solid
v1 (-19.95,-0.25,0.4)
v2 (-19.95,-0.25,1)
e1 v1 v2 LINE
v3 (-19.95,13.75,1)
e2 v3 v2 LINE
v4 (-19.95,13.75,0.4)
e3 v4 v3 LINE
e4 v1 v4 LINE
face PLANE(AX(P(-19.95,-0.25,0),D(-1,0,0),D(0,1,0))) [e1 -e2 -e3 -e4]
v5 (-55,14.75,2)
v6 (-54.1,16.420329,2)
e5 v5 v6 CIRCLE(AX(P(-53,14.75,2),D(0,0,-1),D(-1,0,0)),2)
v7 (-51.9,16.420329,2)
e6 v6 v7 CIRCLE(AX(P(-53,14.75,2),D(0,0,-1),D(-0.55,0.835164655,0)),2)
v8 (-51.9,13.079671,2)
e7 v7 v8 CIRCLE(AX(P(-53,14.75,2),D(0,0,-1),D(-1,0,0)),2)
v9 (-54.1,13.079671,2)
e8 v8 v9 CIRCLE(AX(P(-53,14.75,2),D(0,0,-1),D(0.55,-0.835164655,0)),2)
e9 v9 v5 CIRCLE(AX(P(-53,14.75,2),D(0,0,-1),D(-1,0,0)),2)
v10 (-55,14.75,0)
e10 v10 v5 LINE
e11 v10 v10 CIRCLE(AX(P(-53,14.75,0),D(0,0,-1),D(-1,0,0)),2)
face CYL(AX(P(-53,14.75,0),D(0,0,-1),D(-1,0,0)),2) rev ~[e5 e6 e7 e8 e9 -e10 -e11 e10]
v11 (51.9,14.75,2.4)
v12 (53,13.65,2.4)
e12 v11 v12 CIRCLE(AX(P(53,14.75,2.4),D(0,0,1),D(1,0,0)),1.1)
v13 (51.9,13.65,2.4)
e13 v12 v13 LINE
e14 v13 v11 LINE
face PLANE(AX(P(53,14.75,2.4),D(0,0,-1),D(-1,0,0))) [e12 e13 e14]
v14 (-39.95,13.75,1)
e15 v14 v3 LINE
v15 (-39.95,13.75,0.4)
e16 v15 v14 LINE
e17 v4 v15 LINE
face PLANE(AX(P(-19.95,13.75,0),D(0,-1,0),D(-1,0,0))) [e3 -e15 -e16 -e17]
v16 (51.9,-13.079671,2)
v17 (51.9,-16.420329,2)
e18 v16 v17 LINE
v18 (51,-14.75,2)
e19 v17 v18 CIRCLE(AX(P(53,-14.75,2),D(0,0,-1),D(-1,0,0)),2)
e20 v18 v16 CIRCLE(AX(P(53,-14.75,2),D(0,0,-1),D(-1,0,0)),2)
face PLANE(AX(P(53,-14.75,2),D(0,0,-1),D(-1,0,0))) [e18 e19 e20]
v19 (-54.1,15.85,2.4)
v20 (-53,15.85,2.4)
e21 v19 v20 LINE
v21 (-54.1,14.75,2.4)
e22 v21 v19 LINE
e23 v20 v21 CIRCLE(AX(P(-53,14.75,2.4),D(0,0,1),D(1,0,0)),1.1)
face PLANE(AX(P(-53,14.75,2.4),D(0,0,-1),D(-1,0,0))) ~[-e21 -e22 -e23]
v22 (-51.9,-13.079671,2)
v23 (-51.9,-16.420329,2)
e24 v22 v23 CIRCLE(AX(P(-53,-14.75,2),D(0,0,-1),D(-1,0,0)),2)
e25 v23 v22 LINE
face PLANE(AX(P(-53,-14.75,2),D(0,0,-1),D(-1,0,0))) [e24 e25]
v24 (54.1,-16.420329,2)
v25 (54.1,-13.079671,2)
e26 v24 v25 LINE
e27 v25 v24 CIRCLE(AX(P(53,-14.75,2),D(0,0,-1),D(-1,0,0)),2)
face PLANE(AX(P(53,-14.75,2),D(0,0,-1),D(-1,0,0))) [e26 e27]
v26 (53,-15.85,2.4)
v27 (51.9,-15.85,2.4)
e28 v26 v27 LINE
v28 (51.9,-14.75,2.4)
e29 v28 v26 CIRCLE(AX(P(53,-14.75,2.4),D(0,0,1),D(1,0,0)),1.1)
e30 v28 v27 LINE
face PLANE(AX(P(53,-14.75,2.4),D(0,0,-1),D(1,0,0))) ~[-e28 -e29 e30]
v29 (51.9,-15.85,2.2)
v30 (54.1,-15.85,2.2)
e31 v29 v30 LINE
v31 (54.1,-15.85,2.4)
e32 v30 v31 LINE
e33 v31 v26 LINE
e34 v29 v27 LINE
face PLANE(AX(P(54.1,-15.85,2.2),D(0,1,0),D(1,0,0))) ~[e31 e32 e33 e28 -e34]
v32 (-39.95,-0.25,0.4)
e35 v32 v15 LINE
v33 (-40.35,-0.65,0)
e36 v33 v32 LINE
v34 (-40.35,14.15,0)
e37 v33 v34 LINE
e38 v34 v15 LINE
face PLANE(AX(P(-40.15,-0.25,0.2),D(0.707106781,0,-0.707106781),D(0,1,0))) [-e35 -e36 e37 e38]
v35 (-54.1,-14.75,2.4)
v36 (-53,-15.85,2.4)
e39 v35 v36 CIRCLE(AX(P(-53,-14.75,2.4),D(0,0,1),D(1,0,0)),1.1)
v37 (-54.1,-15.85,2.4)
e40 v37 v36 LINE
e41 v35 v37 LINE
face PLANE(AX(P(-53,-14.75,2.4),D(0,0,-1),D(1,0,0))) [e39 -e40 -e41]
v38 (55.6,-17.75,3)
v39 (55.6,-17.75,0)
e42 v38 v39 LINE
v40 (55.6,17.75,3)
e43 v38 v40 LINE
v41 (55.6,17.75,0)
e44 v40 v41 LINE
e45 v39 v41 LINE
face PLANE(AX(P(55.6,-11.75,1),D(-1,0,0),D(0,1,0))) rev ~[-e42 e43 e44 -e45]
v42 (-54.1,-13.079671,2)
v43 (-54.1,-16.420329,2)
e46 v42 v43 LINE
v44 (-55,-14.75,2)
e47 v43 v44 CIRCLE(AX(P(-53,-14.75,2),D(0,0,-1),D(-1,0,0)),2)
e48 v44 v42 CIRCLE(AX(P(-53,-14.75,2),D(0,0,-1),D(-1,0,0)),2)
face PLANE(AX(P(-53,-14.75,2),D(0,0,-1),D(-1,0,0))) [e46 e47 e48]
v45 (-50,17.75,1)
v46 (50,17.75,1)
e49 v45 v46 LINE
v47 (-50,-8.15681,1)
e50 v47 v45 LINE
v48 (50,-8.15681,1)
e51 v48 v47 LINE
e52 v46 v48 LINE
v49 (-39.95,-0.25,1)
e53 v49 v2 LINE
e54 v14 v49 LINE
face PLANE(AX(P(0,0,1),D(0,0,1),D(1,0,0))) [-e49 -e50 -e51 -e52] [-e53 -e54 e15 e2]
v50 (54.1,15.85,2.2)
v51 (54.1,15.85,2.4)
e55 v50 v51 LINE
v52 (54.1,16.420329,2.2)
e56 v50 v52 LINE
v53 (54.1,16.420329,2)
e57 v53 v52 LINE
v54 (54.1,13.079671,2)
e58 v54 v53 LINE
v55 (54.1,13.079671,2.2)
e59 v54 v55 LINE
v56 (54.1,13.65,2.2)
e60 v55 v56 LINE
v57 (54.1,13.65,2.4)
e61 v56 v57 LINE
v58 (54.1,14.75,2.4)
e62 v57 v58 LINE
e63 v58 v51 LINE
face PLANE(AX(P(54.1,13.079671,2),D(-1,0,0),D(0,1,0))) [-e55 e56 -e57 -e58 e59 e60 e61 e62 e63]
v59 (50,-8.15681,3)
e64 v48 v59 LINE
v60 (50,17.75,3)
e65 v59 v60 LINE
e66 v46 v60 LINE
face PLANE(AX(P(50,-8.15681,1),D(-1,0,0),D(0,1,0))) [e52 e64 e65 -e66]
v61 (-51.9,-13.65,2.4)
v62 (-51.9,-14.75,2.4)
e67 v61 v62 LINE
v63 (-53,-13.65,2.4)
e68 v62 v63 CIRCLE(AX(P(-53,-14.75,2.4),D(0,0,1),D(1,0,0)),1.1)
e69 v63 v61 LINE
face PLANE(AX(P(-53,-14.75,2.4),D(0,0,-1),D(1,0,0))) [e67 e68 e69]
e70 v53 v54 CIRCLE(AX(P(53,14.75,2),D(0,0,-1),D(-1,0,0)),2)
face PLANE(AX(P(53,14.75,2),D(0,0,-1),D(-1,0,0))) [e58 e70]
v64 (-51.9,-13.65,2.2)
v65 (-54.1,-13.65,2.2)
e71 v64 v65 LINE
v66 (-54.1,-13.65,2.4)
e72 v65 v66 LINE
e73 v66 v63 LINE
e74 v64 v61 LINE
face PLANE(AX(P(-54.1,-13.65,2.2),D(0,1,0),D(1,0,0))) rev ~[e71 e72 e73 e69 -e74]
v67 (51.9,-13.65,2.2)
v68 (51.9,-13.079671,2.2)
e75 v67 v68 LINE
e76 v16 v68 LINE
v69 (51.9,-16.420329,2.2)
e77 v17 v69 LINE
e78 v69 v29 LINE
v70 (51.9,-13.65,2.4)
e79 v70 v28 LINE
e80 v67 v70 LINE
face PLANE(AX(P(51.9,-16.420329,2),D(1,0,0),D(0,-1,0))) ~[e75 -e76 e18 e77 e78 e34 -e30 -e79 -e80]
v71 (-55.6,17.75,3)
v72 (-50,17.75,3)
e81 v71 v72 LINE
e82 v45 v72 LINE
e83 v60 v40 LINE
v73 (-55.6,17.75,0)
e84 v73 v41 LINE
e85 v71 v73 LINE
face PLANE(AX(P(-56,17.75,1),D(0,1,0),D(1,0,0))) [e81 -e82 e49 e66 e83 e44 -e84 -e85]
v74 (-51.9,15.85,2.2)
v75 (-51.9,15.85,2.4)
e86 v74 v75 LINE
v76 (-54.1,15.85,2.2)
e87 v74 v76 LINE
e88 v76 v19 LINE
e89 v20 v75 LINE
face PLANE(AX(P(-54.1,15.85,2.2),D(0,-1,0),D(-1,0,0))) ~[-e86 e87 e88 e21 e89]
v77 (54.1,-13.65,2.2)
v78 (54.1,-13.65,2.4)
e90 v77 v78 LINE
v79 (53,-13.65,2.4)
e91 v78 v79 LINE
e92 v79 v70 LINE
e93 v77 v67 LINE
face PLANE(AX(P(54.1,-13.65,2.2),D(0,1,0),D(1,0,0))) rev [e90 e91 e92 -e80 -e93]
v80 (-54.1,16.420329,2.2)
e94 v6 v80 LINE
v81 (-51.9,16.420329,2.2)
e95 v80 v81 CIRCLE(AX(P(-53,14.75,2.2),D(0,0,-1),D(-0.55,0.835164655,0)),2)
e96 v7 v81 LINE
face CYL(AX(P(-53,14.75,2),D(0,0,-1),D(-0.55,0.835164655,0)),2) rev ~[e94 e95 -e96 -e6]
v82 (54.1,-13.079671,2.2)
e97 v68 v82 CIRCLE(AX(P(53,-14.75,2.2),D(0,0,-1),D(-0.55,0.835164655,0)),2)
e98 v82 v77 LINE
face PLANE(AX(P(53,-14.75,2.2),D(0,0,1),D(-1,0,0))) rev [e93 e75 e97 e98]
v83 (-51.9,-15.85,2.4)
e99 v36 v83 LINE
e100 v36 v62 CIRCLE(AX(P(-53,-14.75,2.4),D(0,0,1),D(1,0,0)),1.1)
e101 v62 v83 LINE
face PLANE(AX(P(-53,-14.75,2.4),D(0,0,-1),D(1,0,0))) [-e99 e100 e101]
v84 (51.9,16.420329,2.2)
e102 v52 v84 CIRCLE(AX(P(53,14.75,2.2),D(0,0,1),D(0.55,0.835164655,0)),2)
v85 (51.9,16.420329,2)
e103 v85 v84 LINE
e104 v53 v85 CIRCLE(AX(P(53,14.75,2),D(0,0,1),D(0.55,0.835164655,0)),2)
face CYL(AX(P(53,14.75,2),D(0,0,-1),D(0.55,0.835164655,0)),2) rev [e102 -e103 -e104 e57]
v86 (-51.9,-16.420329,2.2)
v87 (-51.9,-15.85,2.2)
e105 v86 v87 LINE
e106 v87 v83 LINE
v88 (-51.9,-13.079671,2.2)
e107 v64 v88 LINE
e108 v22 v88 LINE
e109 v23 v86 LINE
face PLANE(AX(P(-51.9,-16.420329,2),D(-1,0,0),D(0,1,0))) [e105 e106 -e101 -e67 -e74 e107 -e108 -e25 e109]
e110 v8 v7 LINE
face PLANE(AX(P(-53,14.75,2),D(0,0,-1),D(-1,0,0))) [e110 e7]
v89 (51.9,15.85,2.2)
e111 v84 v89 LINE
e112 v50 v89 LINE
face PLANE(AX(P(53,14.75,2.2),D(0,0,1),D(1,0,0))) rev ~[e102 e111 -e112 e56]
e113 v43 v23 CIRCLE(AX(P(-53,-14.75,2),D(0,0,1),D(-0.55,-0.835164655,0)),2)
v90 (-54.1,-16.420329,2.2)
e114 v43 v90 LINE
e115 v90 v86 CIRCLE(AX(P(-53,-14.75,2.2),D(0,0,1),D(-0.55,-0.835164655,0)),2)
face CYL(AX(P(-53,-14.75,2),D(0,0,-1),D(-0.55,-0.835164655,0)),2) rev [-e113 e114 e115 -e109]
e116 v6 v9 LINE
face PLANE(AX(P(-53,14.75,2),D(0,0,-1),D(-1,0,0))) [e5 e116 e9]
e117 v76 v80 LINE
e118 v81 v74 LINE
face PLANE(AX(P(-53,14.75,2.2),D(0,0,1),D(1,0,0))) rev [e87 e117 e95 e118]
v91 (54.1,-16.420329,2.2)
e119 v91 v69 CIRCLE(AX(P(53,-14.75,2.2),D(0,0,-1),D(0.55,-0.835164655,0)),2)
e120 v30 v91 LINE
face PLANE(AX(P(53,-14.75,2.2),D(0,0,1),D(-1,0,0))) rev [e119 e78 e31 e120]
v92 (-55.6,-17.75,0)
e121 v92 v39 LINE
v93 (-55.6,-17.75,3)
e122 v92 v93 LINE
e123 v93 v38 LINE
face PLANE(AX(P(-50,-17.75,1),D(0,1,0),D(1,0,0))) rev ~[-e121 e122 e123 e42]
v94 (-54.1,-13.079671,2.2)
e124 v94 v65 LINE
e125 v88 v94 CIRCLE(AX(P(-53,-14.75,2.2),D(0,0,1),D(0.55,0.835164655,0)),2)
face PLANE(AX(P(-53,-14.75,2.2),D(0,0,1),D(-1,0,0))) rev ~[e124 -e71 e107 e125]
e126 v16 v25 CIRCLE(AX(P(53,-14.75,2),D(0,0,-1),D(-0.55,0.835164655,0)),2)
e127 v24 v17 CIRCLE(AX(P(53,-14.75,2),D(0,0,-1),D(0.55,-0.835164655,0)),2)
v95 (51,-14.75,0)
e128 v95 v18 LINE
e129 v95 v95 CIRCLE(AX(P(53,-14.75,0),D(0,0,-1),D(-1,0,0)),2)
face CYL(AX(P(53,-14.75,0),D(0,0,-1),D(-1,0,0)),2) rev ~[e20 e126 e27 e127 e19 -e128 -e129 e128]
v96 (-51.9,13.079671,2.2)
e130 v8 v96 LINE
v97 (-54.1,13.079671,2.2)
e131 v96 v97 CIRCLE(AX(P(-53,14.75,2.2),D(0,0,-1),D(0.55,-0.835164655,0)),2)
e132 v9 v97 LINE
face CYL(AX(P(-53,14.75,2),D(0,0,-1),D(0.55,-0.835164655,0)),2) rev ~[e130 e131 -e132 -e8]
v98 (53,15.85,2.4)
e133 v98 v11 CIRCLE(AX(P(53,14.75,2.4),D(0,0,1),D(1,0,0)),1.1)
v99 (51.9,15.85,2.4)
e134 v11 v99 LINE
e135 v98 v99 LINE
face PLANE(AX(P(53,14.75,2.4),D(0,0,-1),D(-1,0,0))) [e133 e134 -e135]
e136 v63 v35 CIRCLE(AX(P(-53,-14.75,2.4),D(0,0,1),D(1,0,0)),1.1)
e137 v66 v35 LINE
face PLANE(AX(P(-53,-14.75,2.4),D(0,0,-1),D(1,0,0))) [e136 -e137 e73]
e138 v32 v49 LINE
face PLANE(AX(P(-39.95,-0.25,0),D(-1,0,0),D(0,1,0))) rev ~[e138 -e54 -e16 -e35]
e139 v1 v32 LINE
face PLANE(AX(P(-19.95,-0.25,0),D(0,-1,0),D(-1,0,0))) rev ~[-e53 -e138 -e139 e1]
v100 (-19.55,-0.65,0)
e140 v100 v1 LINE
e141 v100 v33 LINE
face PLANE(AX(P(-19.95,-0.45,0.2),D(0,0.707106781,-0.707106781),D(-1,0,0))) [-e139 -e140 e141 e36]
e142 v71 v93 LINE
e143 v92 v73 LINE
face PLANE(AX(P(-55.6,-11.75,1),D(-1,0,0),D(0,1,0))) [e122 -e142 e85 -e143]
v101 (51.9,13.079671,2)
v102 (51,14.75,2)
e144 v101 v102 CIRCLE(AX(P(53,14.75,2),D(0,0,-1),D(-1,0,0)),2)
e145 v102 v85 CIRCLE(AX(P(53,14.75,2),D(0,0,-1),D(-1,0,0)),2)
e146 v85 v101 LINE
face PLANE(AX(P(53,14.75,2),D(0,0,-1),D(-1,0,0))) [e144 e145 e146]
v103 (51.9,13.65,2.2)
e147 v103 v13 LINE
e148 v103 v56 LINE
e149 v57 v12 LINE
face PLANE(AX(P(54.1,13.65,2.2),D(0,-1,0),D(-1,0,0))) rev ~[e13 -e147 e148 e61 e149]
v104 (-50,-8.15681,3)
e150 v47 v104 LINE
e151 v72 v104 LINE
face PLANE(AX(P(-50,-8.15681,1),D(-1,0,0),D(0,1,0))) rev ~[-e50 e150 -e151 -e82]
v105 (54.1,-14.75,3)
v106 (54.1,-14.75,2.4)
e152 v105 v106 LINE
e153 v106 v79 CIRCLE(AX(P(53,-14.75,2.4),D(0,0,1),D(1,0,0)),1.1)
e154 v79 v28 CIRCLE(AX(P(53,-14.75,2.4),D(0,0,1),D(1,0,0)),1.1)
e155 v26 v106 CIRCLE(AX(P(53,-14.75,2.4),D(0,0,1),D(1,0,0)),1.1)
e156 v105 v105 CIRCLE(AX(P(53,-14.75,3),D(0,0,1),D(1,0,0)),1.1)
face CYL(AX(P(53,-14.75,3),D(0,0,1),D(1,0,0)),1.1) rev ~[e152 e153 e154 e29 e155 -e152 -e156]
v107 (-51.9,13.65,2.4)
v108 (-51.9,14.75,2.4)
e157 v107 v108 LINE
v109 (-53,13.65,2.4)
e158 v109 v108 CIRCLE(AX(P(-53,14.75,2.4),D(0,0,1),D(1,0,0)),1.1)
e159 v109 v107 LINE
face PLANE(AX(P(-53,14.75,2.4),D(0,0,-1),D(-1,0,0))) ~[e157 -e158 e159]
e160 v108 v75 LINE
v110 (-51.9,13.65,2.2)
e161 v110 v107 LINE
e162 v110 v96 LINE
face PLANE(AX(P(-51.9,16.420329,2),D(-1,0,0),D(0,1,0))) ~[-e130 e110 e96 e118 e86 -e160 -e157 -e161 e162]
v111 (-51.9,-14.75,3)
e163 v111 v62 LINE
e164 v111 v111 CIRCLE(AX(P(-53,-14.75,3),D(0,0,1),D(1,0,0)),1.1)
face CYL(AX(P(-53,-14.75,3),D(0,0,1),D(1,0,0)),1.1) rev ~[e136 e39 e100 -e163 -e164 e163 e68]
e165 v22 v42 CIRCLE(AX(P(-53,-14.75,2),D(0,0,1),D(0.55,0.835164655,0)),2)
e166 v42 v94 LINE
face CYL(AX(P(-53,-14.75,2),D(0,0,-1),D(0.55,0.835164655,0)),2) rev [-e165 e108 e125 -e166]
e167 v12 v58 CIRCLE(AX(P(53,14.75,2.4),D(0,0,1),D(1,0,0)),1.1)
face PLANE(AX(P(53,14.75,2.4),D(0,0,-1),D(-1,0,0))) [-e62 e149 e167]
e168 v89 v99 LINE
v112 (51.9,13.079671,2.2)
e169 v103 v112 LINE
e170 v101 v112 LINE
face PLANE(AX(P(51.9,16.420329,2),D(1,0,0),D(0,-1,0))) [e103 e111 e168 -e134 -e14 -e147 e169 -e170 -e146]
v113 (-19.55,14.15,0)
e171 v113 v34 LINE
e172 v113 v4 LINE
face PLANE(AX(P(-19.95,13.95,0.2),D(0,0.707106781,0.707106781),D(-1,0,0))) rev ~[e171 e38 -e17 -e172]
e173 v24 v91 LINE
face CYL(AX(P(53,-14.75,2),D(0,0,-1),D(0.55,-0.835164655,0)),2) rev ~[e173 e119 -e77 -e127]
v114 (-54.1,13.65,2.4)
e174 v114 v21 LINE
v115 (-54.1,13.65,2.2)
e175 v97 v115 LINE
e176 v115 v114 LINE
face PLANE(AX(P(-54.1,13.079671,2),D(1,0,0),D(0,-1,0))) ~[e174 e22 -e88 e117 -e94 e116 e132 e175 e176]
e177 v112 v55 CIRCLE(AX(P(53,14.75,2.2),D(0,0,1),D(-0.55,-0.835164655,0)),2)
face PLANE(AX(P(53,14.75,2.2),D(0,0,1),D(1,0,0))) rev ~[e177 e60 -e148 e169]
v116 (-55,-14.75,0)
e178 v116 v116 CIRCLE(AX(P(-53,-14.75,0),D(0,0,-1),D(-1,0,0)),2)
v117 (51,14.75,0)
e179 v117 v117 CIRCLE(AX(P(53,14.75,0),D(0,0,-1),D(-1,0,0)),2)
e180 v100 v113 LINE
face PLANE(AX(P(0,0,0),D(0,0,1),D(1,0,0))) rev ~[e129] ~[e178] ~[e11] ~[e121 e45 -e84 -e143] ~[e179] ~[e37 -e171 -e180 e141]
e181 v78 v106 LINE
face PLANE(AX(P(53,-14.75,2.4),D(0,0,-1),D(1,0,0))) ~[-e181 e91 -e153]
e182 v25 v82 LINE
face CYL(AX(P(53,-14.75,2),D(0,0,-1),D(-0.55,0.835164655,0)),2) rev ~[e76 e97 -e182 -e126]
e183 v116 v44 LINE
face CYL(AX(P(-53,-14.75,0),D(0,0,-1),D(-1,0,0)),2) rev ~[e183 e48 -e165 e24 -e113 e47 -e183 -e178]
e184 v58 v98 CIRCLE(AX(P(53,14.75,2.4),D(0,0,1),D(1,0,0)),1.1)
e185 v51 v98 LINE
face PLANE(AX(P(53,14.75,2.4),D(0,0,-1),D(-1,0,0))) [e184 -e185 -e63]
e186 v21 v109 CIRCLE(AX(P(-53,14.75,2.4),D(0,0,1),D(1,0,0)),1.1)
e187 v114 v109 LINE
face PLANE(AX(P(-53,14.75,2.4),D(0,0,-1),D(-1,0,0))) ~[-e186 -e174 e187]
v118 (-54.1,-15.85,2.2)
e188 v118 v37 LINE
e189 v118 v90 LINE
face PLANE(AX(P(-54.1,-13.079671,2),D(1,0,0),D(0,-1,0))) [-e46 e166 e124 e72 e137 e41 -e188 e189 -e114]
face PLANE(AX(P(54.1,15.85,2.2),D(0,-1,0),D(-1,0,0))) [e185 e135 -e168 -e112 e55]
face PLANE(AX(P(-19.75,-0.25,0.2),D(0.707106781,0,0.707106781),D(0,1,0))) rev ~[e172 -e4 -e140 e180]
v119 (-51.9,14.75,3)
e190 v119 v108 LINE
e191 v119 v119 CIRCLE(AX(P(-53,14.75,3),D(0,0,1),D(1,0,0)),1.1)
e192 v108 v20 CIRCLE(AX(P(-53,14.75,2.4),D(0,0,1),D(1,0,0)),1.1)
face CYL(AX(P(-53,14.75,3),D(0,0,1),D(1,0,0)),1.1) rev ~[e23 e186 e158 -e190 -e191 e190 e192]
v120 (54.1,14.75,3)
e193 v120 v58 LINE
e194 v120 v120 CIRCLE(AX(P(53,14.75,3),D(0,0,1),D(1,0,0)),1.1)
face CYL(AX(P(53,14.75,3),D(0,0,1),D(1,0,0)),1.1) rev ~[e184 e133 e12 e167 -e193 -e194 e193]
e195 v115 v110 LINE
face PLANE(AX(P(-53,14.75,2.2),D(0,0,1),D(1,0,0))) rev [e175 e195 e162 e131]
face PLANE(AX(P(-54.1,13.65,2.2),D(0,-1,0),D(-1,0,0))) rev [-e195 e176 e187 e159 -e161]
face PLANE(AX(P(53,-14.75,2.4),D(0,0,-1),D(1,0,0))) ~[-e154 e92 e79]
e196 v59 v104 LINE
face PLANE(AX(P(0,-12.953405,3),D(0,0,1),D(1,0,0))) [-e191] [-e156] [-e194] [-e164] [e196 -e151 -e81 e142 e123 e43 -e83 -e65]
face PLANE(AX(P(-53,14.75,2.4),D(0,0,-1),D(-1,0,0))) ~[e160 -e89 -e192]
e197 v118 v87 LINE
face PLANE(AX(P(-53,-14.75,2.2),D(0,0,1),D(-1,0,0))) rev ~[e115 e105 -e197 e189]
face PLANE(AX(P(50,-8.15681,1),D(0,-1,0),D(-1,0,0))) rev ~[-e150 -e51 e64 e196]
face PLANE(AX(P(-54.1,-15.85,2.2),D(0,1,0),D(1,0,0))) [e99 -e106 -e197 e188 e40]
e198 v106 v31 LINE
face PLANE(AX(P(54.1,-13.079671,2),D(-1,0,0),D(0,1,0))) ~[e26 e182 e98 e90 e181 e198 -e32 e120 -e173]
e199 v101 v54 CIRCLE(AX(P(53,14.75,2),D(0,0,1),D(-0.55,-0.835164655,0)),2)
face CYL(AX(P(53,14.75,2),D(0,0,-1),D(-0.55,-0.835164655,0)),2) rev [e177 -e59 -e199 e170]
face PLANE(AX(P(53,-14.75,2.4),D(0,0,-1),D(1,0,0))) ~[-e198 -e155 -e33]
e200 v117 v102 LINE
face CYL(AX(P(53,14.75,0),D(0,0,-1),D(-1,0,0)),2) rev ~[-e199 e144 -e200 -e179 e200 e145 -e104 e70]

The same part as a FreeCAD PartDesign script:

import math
import FreeCAD as App
import Part
import Sketcher

V = App.Vector


def edges_at(feature, points):
    """Names of the edges that pass closest to the given points."""
    edges = feature.Shape.Edges
    near = lambda p: min(range(len(edges)), key=lambda i: edges[i].distToShape(Part.Vertex(*p))[0])
    return sorted({f"Edge{near(p) + 1}" for p in points})

doc = App.newDocument("Part")
body = doc.addObject("PartDesign::Body", "Body")

# Sketch on XY plane
sketch1 = doc.addObject("Sketcher::SketchObject", "Sketch")
body.addObject(sketch1)
sketch1.AttachmentSupport = (doc.XY_Plane, [""])
sketch1.MapMode = "FlatFace"
sketch1.addGeometry(Part.LineSegment(V(-56, 17.75, 0), V(-56, -17.75, 0)), False)
sketch1.addGeometry(Part.LineSegment(V(-56, -17.75, 0), V(56, -17.75, 0)), False)
sketch1.addGeometry(Part.LineSegment(V(56, -17.75, 0), V(56, 17.75, 0)), False)
sketch1.addGeometry(Part.LineSegment(V(56, 17.75, 0), V(-56, 17.75, 0)), False)
sketch1.addConstraint(Sketcher.Constraint("Coincident", 0, 2, 1, 1))
sketch1.addConstraint(Sketcher.Constraint("Coincident", 1, 2, 2, 1))
sketch1.addConstraint(Sketcher.Constraint("Coincident", 2, 2, 3, 1))
sketch1.addConstraint(Sketcher.Constraint("Coincident", 3, 2, 0, 1))
sketch1.addConstraint(Sketcher.Constraint("Vertical", 0))
sketch1.addConstraint(Sketcher.Constraint("Horizontal", 1))
sketch1.addConstraint(Sketcher.Constraint("Vertical", 2))
sketch1.addConstraint(Sketcher.Constraint("Horizontal", 3))
sketch1.addConstraint(Sketcher.Constraint("Symmetric", 0, 2, 2, 2, -1, 1))
sketch1.addConstraint(Sketcher.Constraint("DistanceX", 1, 1, 1, 2, 112.0))
sketch1.addConstraint(Sketcher.Constraint("DistanceY", 0, 2, 0, 1, 35.5))
pad1 = doc.addObject("PartDesign::Pad", "Pad")
body.addObject(pad1)
pad1.Profile = sketch1
pad1.Length = 1

# Sketch on XY plane
sketch2 = doc.addObject("Sketcher::SketchObject", "Sketch001")
body.addObject(sketch2)
sketch2.AttachmentSupport = (doc.XY_Plane, [""])
sketch2.MapMode = "FlatFace"
sketch2.AttachmentOffset = App.Placement(V(0, 0, 1), App.Rotation())
sketch2.addGeometry(Part.LineSegment(V(-56, 17.75, 0), V(-56, 11.75, 0)), False)
sketch2.addGeometry(Part.LineSegment(V(-56, 11.75, 0), V(-50, 11.75, 0)), False)
sketch2.addGeometry(Part.LineSegment(V(-50, 11.75, 0), V(-50, 17.75, 0)), False)
sketch2.addGeometry(Part.LineSegment(V(-50, 17.75, 0), V(-56, 17.75, 0)), False)
sketch2.addGeometry(Part.LineSegment(V(-56, -11.75, 0), V(-56, -17.75, 0)), False)
sketch2.addGeometry(Part.LineSegment(V(-56, -17.75, 0), V(-50, -17.75, 0)), False)
sketch2.addGeometry(Part.LineSegment(V(-50, -17.75, 0), V(-50, -11.75, 0)), False)
sketch2.addGeometry(Part.LineSegment(V(-50, -11.75, 0), V(-56, -11.75, 0)), False)
sketch2.addGeometry(Part.LineSegment(V(50, -11.75, 0), V(50, -17.75, 0)), False)
sketch2.addGeometry(Part.LineSegment(V(50, -17.75, 0), V(56, -17.75, 0)), False)
sketch2.addGeometry(Part.LineSegment(V(56, -17.75, 0), V(56, -11.75, 0)), False)
sketch2.addGeometry(Part.LineSegment(V(56, -11.75, 0), V(50, -11.75, 0)), False)
sketch2.addGeometry(Part.LineSegment(V(50, 17.75, 0), V(50, 11.75, 0)), False)
sketch2.addGeometry(Part.LineSegment(V(50, 11.75, 0), V(56, 11.75, 0)), False)
sketch2.addGeometry(Part.LineSegment(V(56, 11.75, 0), V(56, 17.75, 0)), False)
sketch2.addGeometry(Part.LineSegment(V(56, 17.75, 0), V(50, 17.75, 0)), False)
sketch2.addConstraint(Sketcher.Constraint("Coincident", 0, 2, 1, 1))
sketch2.addConstraint(Sketcher.Constraint("Coincident", 1, 2, 2, 1))
sketch2.addConstraint(Sketcher.Constraint("Coincident", 2, 2, 3, 1))
sketch2.addConstraint(Sketcher.Constraint("Coincident", 3, 2, 0, 1))
sketch2.addConstraint(Sketcher.Constraint("Coincident", 4, 2, 5, 1))
sketch2.addConstraint(Sketcher.Constraint("Coincident", 5, 2, 6, 1))
sketch2.addConstraint(Sketcher.Constraint("Coincident", 6, 2, 7, 1))
sketch2.addConstraint(Sketcher.Constraint("Coincident", 7, 2, 4, 1))
sketch2.addConstraint(Sketcher.Constraint("Coincident", 8, 2, 9, 1))
sketch2.addConstraint(Sketcher.Constraint("Coincident", 9, 2, 10, 1))
sketch2.addConstraint(Sketcher.Constraint("Coincident", 10, 2, 11, 1))
sketch2.addConstraint(Sketcher.Constraint("Coincident", 11, 2, 8, 1))
sketch2.addConstraint(Sketcher.Constraint("Coincident", 12, 2, 13, 1))
sketch2.addConstraint(Sketcher.Constraint("Coincident", 13, 2, 14, 1))
sketch2.addConstraint(Sketcher.Constraint("Coincident", 14, 2, 15, 1))
sketch2.addConstraint(Sketcher.Constraint("Coincident", 15, 2, 12, 1))
sketch2.addConstraint(Sketcher.Constraint("Vertical", 0))
sketch2.addConstraint(Sketcher.Constraint("Horizontal", 1))
sketch2.addConstraint(Sketcher.Constraint("Vertical", 2))
sketch2.addConstraint(Sketcher.Constraint("Horizontal", 3))
sketch2.addConstraint(Sketcher.Constraint("Vertical", 4))
sketch2.addConstraint(Sketcher.Constraint("Horizontal", 5))
sketch2.addConstraint(Sketcher.Constraint("Vertical", 6))
sketch2.addConstraint(Sketcher.Constraint("Horizontal", 7))
sketch2.addConstraint(Sketcher.Constraint("Vertical", 8))
sketch2.addConstraint(Sketcher.Constraint("Horizontal", 9))
sketch2.addConstraint(Sketcher.Constraint("Vertical", 10))
sketch2.addConstraint(Sketcher.Constraint("Horizontal", 11))
sketch2.addConstraint(Sketcher.Constraint("Vertical", 12))
sketch2.addConstraint(Sketcher.Constraint("Horizontal", 13))
sketch2.addConstraint(Sketcher.Constraint("Vertical", 14))
sketch2.addConstraint(Sketcher.Constraint("Horizontal", 15))
sketch2.addConstraint(Sketcher.Constraint("Symmetric", 2, 2, 8, 2, -1, 1))
sketch2.addConstraint(Sketcher.Constraint("Symmetric", 0, 2, 10, 2, -1, 1))
sketch2.addConstraint(Sketcher.Constraint("Symmetric", 6, 2, 12, 2, -1, 1))
sketch2.addConstraint(Sketcher.Constraint("Symmetric", 4, 2, 14, 2, -1, 1))
sketch2.addConstraint(Sketcher.Constraint("Symmetric", 5, 2, 8, 2, -2))
sketch2.addConstraint(Sketcher.Constraint("Symmetric", 7, 2, 10, 2, -2))
sketch2.addConstraint(Sketcher.Constraint("Equal", 15, 0))
sketch2.addConstraint(Sketcher.Constraint("DistanceX", 1, 1, 1, 2, 6.0))
sketch2.addConstraint(Sketcher.Constraint("DistanceX", 0, 2, -1, 1, 56.0))
sketch2.addConstraint(Sketcher.Constraint("DistanceY", 4, 2, 0, 2, 29.5))
pad2 = doc.addObject("PartDesign::Pad", "Pad001")
body.addObject(pad2)
pad2.Profile = sketch2
pad2.Length = 2

# Sketch on XY plane
sketch3 = doc.addObject("Sketcher::SketchObject", "Sketch002")
body.addObject(sketch3)
sketch3.AttachmentSupport = (doc.XY_Plane, [""])
sketch3.MapMode = "FlatFace"
sketch3.AttachmentOffset = App.Placement(V(0, 0, 3), App.Rotation())
sketch3.addGeometry(Part.Circle(V(-53, 14.75, 0), V(0, 0, 1), 1.1), False)
sketch3.addGeometry(Part.Circle(V(-53, -14.75, 0), V(0, 0, 1), 1.1), False)
sketch3.addGeometry(Part.Circle(V(53, -14.75, 0), V(0, 0, 1), 1.1), False)
sketch3.addGeometry(Part.Circle(V(53, 14.75, 0), V(0, 0, 1), 1.1), False)
sketch3.addConstraint(Sketcher.Constraint("Equal", 0, 1))
sketch3.addConstraint(Sketcher.Constraint("Equal", 1, 2))
sketch3.addConstraint(Sketcher.Constraint("Equal", 2, 3))
sketch3.addConstraint(Sketcher.Constraint("Symmetric", 0, 3, 2, 3, -1, 1))
sketch3.addConstraint(Sketcher.Constraint("Symmetric", 1, 3, 3, 3, -1, 1))
sketch3.addConstraint(Sketcher.Constraint("Symmetric", 1, 3, 2, 3, -2))
sketch3.addConstraint(Sketcher.Constraint("Diameter", 0, 2.2))
sketch3.addConstraint(Sketcher.Constraint("DistanceX", 0, 3, -1, 1, 53.0))
sketch3.addConstraint(Sketcher.Constraint("DistanceY", 1, 3, 0, 3, 29.5))
pocket1 = doc.addObject("PartDesign::Pocket", "Pocket")
body.addObject(pocket1)
pocket1.Profile = sketch3
pocket1.Type = "ThroughAll"

# Sketch on XY plane
sketch4 = doc.addObject("Sketcher::SketchObject", "Sketch003")
body.addObject(sketch4)
sketch4.AttachmentSupport = (doc.XY_Plane, [""])
sketch4.MapMode = "FlatFace"
sketch4.addGeometry(Part.Circle(V(53, 14.75, 0), V(0, 0, 1), 2), False)
sketch4.addGeometry(Part.Circle(V(53, -14.75, 0), V(0, 0, 1), 2), False)
sketch4.addGeometry(Part.Circle(V(-53, 14.75, 0), V(0, 0, 1), 2), False)
sketch4.addGeometry(Part.Circle(V(-53, -14.75, 0), V(0, 0, 1), 2), False)
sketch4.addConstraint(Sketcher.Constraint("Equal", 0, 1))
sketch4.addConstraint(Sketcher.Constraint("Equal", 1, 2))
sketch4.addConstraint(Sketcher.Constraint("Equal", 2, 3))
sketch4.addConstraint(Sketcher.Constraint("Symmetric", 1, 3, 2, 3, -1, 1))
sketch4.addConstraint(Sketcher.Constraint("Symmetric", 0, 3, 3, 3, -1, 1))
sketch4.addConstraint(Sketcher.Constraint("Symmetric", 0, 3, 2, 3, -2))
sketch4.addConstraint(Sketcher.Constraint("Diameter", 0, 4.0))
sketch4.addConstraint(Sketcher.Constraint("DistanceX", -1, 1, 0, 3, 53.0))
sketch4.addConstraint(Sketcher.Constraint("DistanceY", 1, 3, 0, 3, 29.5))
pocket2 = doc.addObject("PartDesign::Pocket", "Pocket001")
body.addObject(pocket2)
pocket2.Profile = sketch4
pocket2.Length = 2
pocket2.Reversed = True

# Sketch on XY plane
sketch5 = doc.addObject("Sketcher::SketchObject", "Sketch004")
body.addObject(sketch5)
sketch5.AttachmentSupport = (doc.XY_Plane, [""])
sketch5.MapMode = "FlatFace"
sketch5.addGeometry(Part.LineSegment(V(-19.95, 13.75, 0), V(-19.95, -0.25, 0)), False)
sketch5.addGeometry(Part.LineSegment(V(-19.95, -0.25, 0), V(-39.95, -0.25, 0)), False)
sketch5.addGeometry(Part.LineSegment(V(-39.95, -0.25, 0), V(-39.95, 13.75, 0)), False)
sketch5.addGeometry(Part.LineSegment(V(-39.95, 13.75, 0), V(-19.95, 13.75, 0)), False)
sketch5.addConstraint(Sketcher.Constraint("Coincident", 0, 2, 1, 1))
sketch5.addConstraint(Sketcher.Constraint("Coincident", 1, 2, 2, 1))
sketch5.addConstraint(Sketcher.Constraint("Coincident", 2, 2, 3, 1))
sketch5.addConstraint(Sketcher.Constraint("Coincident", 3, 2, 0, 1))
sketch5.addConstraint(Sketcher.Constraint("Vertical", 0))
sketch5.addConstraint(Sketcher.Constraint("Horizontal", 1))
sketch5.addConstraint(Sketcher.Constraint("Vertical", 2))
sketch5.addConstraint(Sketcher.Constraint("Horizontal", 3))
sketch5.addConstraint(Sketcher.Constraint("DistanceX", 1, 2, 1, 1, 20.0))
sketch5.addConstraint(Sketcher.Constraint("DistanceY", 0, 2, 0, 1, 14.0))
sketch5.addConstraint(Sketcher.Constraint("DistanceX", 0, 2, -1, 1, 19.95))
sketch5.addConstraint(Sketcher.Constraint("DistanceY", 0, 2, -1, 1, 0.25))
pocket3 = doc.addObject("PartDesign::Pocket", "Pocket002")
body.addObject(pocket3)
pocket3.Profile = sketch5
pocket3.Type = "ThroughAll"
pocket3.Reversed = True
doc.recompute()

chamfer = doc.addObject("PartDesign::Chamfer", "Chamfer")
body.addObject(chamfer)
chamfer.Base = (pocket3, edges_at(pocket3, [
    (-39.95, 6.75, 0),
    (-29.95, 13.75, 0),
    (-19.95, 6.75, 0),
    (-29.95, -0.25, 0),
]))
chamfer.Size = 0.4

# Sketch on XY plane
sketch6 = doc.addObject("Sketcher::SketchObject", "Sketch005")
body.addObject(sketch6)
sketch6.AttachmentSupport = (doc.XY_Plane, [""])
sketch6.MapMode = "FlatFace"
sketch6.AttachmentOffset = App.Placement(V(0, 0, 2), App.Rotation())
sketch6.addGeometry(Part.LineSegment(V(54.1, 16.420329, 0), V(54.1, 13.079671, 0)), False)
sketch6.addGeometry(Part.ArcOfCircle(Part.Circle(V(53, 14.75, 0), V(0, 0, 1), 2), math.radians(-123.367013), math.radians(-56.632987)), False)
sketch6.addGeometry(Part.LineSegment(V(51.9, 13.079671, 0), V(51.9, 16.420329, 0)), False)
sketch6.addGeometry(Part.ArcOfCircle(Part.Circle(V(53, 14.75, 0), V(0, 0, 1), 2), math.radians(56.632987), math.radians(123.367013)), False)
sketch6.addConstraint(Sketcher.Constraint("Coincident", 0, 2, 1, 2))
sketch6.addConstraint(Sketcher.Constraint("Coincident", 1, 1, 2, 1))
sketch6.addConstraint(Sketcher.Constraint("Coincident", 2, 2, 3, 2))
sketch6.addConstraint(Sketcher.Constraint("Coincident", 3, 1, 0, 1))
sketch6.addConstraint(Sketcher.Constraint("Vertical", 0))
sketch6.addConstraint(Sketcher.Constraint("Vertical", 2))
sketch6.addConstraint(Sketcher.Constraint("Coincident", 3, 3, 1, 3))
sketch6.addConstraint(Sketcher.Constraint("Equal", 1, 3))
sketch6.addConstraint(Sketcher.Constraint("Horizontal", 0, 2, 1, 1))
sketch6.addConstraint(Sketcher.Constraint("Radius", 1, 2.0))
sketch6.addConstraint(Sketcher.Constraint("DistanceX", -1, 1, 1, 3, 53.0))
sketch6.addConstraint(Sketcher.Constraint("DistanceX", -1, 1, 0, 2, 54.1))
sketch6.addConstraint(Sketcher.Constraint("DistanceY", -1, 1, 1, 3, 14.75))
pocket4 = doc.addObject("PartDesign::Pocket", "Pocket003")
body.addObject(pocket4)
pocket4.Profile = sketch6
pocket4.Length = 0.2
pocket4.Reversed = True

# Sketch on XY plane
sketch7 = doc.addObject("Sketcher::SketchObject", "Sketch006")
body.addObject(sketch7)
sketch7.AttachmentSupport = (doc.XY_Plane, [""])
sketch7.MapMode = "FlatFace"
sketch7.AttachmentOffset = App.Placement(V(0, 0, 2.2), App.Rotation())
sketch7.addGeometry(Part.LineSegment(V(54.1, 15.85, 0), V(54.1, 13.65, 0)), False)
sketch7.addGeometry(Part.LineSegment(V(54.1, 13.65, 0), V(51.9, 13.65, 0)), False)
sketch7.addGeometry(Part.LineSegment(V(51.9, 13.65, 0), V(51.9, 15.85, 0)), False)
sketch7.addGeometry(Part.LineSegment(V(51.9, 15.85, 0), V(54.1, 15.85, 0)), False)
sketch7.addConstraint(Sketcher.Constraint("Coincident", 0, 2, 1, 1))
sketch7.addConstraint(Sketcher.Constraint("Coincident", 1, 2, 2, 1))
sketch7.addConstraint(Sketcher.Constraint("Coincident", 2, 2, 3, 1))
sketch7.addConstraint(Sketcher.Constraint("Coincident", 3, 2, 0, 1))
sketch7.addConstraint(Sketcher.Constraint("Vertical", 0))
sketch7.addConstraint(Sketcher.Constraint("Horizontal", 1))
sketch7.addConstraint(Sketcher.Constraint("Vertical", 2))
sketch7.addConstraint(Sketcher.Constraint("Horizontal", 3))
sketch7.addConstraint(Sketcher.Constraint("Equal", 3, 0))
sketch7.addConstraint(Sketcher.Constraint("DistanceX", 1, 2, 1, 1, 2.2))
sketch7.addConstraint(Sketcher.Constraint("DistanceX", -1, 1, 0, 2, 54.1))
sketch7.addConstraint(Sketcher.Constraint("DistanceY", -1, 1, 0, 2, 13.65))
pocket5 = doc.addObject("PartDesign::Pocket", "Pocket004")
body.addObject(pocket5)
pocket5.Profile = sketch7
pocket5.Length = 0.2
pocket5.Reversed = True
doc.recompute()

mirrored = doc.addObject("PartDesign::Mirrored", "Mirrored")
body.addObject(mirrored)
mirrored.Originals = [pocket4, pocket5]
mirrored.MirrorPlane = (doc.YZ_Plane, [""])
body.Tip = mirrored
doc.recompute()

mirrored2 = doc.addObject("PartDesign::Mirrored", "Mirrored001")
body.addObject(mirrored2)
mirrored2.Originals = [pocket4, pocket5]
mirrored2.MirrorPlane = (doc.XZ_Plane, [""])
body.Tip = mirrored2

# Sketch on XY plane
sketch8 = doc.addObject("Sketcher::SketchObject", "Sketch007")
body.addObject(sketch8)
sketch8.AttachmentSupport = (doc.XY_Plane, [""])
sketch8.MapMode = "FlatFace"
sketch8.AttachmentOffset = App.Placement(V(0, 0, 2), App.Rotation())
sketch8.addGeometry(Part.LineSegment(V(-54.1, -16.420329, 0), V(-54.1, -13.079671, 0)), False)
sketch8.addGeometry(Part.ArcOfCircle(Part.Circle(V(-53, -14.75, 0), V(0, 0, 1), 2), math.radians(56.632987), math.radians(123.367013)), False)
sketch8.addGeometry(Part.LineSegment(V(-51.9, -13.079671, 0), V(-51.9, -16.420329, 0)), False)
sketch8.addGeometry(Part.ArcOfCircle(Part.Circle(V(-53, -14.75, 0), V(0, 0, 1), 2), math.radians(-123.367013), math.radians(-56.632987)), False)
sketch8.addConstraint(Sketcher.Constraint("Coincident", 0, 2, 1, 2))
sketch8.addConstraint(Sketcher.Constraint("Coincident", 1, 1, 2, 1))
sketch8.addConstraint(Sketcher.Constraint("Coincident", 2, 2, 3, 2))
sketch8.addConstraint(Sketcher.Constraint("Coincident", 3, 1, 0, 1))
sketch8.addConstraint(Sketcher.Constraint("Vertical", 0))
sketch8.addConstraint(Sketcher.Constraint("Vertical", 2))
sketch8.addConstraint(Sketcher.Constraint("Coincident", 3, 3, 1, 3))
sketch8.addConstraint(Sketcher.Constraint("Equal", 1, 3))
sketch8.addConstraint(Sketcher.Constraint("Horizontal", 0, 2, 1, 1))
sketch8.addConstraint(Sketcher.Constraint("Radius", 1, 2.0))
sketch8.addConstraint(Sketcher.Constraint("DistanceX", 1, 3, -1, 1, 53.0))
sketch8.addConstraint(Sketcher.Constraint("DistanceX", 0, 2, -1, 1, 54.1))
sketch8.addConstraint(Sketcher.Constraint("DistanceY", 1, 3, -1, 1, 14.75))
pocket6 = doc.addObject("PartDesign::Pocket", "Pocket005")
body.addObject(pocket6)
pocket6.Profile = sketch8
pocket6.Length = 0.2
pocket6.Reversed = True

# Sketch on XY plane
sketch9 = doc.addObject("Sketcher::SketchObject", "Sketch008")
body.addObject(sketch9)
sketch9.AttachmentSupport = (doc.XY_Plane, [""])
sketch9.MapMode = "FlatFace"
sketch9.AttachmentOffset = App.Placement(V(0, 0, 2.2), App.Rotation())
sketch9.addGeometry(Part.LineSegment(V(-54.1, -15.85, 0), V(-54.1, -13.65, 0)), False)
sketch9.addGeometry(Part.LineSegment(V(-54.1, -13.65, 0), V(-51.9, -13.65, 0)), False)
sketch9.addGeometry(Part.LineSegment(V(-51.9, -13.65, 0), V(-51.9, -15.85, 0)), False)
sketch9.addGeometry(Part.LineSegment(V(-51.9, -15.85, 0), V(-54.1, -15.85, 0)), False)
sketch9.addConstraint(Sketcher.Constraint("Coincident", 0, 2, 1, 1))
sketch9.addConstraint(Sketcher.Constraint("Coincident", 1, 2, 2, 1))
sketch9.addConstraint(Sketcher.Constraint("Coincident", 2, 2, 3, 1))
sketch9.addConstraint(Sketcher.Constraint("Coincident", 3, 2, 0, 1))
sketch9.addConstraint(Sketcher.Constraint("Vertical", 0))
sketch9.addConstraint(Sketcher.Constraint("Horizontal", 1))
sketch9.addConstraint(Sketcher.Constraint("Vertical", 2))
sketch9.addConstraint(Sketcher.Constraint("Horizontal", 3))
sketch9.addConstraint(Sketcher.Constraint("Equal", 3, 0))
sketch9.addConstraint(Sketcher.Constraint("DistanceX", 1, 1, 1, 2, 2.2))
sketch9.addConstraint(Sketcher.Constraint("DistanceX", 0, 2, -1, 1, 54.1))
sketch9.addConstraint(Sketcher.Constraint("DistanceY", 0, 2, -1, 1, 13.65))
pocket7 = doc.addObject("PartDesign::Pocket", "Pocket006")
body.addObject(pocket7)
pocket7.Profile = sketch9
pocket7.Length = 0.2
pocket7.Reversed = True

# Sketch on XY plane
sketch10 = doc.addObject("Sketcher::SketchObject", "Sketch009")
body.addObject(sketch10)
sketch10.AttachmentSupport = (doc.XY_Plane, [""])
sketch10.MapMode = "FlatFace"
sketch10.AttachmentOffset = App.Placement(V(0, 0, 1), App.Rotation())
sketch10.addGeometry(Part.LineSegment(V(-56, 17.75, 0), V(-56, -17.75, 0)), False)
sketch10.addGeometry(Part.LineSegment(V(-56, -17.75, 0), V(-55.6, -17.75, 0)), False)
sketch10.addGeometry(Part.LineSegment(V(-55.6, -17.75, 0), V(-55.6, 17.75, 0)), False)
sketch10.addGeometry(Part.LineSegment(V(-55.6, 17.75, 0), V(-56, 17.75, 0)), False)
sketch10.addGeometry(Part.LineSegment(V(55.6, 17.75, 0), V(55.6, -17.75, 0)), False)
sketch10.addGeometry(Part.LineSegment(V(55.6, -17.75, 0), V(56, -17.75, 0)), False)
sketch10.addGeometry(Part.LineSegment(V(56, -17.75, 0), V(56, 17.75, 0)), False)
sketch10.addGeometry(Part.LineSegment(V(56, 17.75, 0), V(55.6, 17.75, 0)), False)
sketch10.addConstraint(Sketcher.Constraint("Coincident", 0, 2, 1, 1))
sketch10.addConstraint(Sketcher.Constraint("Coincident", 1, 2, 2, 1))
sketch10.addConstraint(Sketcher.Constraint("Coincident", 2, 2, 3, 1))
sketch10.addConstraint(Sketcher.Constraint("Coincident", 3, 2, 0, 1))
sketch10.addConstraint(Sketcher.Constraint("Coincident", 4, 2, 5, 1))
sketch10.addConstraint(Sketcher.Constraint("Coincident", 5, 2, 6, 1))
sketch10.addConstraint(Sketcher.Constraint("Coincident", 6, 2, 7, 1))
sketch10.addConstraint(Sketcher.Constraint("Coincident", 7, 2, 4, 1))
sketch10.addConstraint(Sketcher.Constraint("Vertical", 0))
sketch10.addConstraint(Sketcher.Constraint("Horizontal", 1))
sketch10.addConstraint(Sketcher.Constraint("Vertical", 2))
sketch10.addConstraint(Sketcher.Constraint("Horizontal", 3))
sketch10.addConstraint(Sketcher.Constraint("Vertical", 4))
sketch10.addConstraint(Sketcher.Constraint("Horizontal", 5))
sketch10.addConstraint(Sketcher.Constraint("Vertical", 6))
sketch10.addConstraint(Sketcher.Constraint("Horizontal", 7))
sketch10.addConstraint(Sketcher.Constraint("Symmetric", 2, 2, 4, 2, -1, 1))
sketch10.addConstraint(Sketcher.Constraint("Symmetric", 0, 2, 6, 2, -1, 1))
sketch10.addConstraint(Sketcher.Constraint("Horizontal", 1, 2, 4, 2))
sketch10.addConstraint(Sketcher.Constraint("DistanceX", 1, 1, 1, 2, 0.4))
sketch10.addConstraint(Sketcher.Constraint("DistanceY", 0, 2, 0, 1, 35.5))
sketch10.addConstraint(Sketcher.Constraint("DistanceX", 0, 2, -1, 1, 56.0))
pocket8 = doc.addObject("PartDesign::Pocket", "Pocket007")
body.addObject(pocket8)
pocket8.Profile = sketch10
pocket8.Type = "ThroughAll"
pocket8.Midplane = True

# Sketch on XY plane
sketch11 = doc.addObject("Sketcher::SketchObject", "Sketch010")
body.addObject(sketch11)
sketch11.AttachmentSupport = (doc.XY_Plane, [""])
sketch11.MapMode = "FlatFace"
sketch11.AttachmentOffset = App.Placement(V(0, 0, 1), App.Rotation())
sketch11.addGeometry(Part.LineSegment(V(50, -8.15681, 0), V(-50, -8.15681, 0)), False)
sketch11.addGeometry(Part.LineSegment(V(-50, -8.15681, 0), V(-50, 11.75, 0)), False)
sketch11.addGeometry(Part.LineSegment(V(-50, 11.75, 0), V(-55.6, 11.75, 0)), False)
sketch11.addGeometry(Part.LineSegment(V(-55.6, 11.75, 0), V(-55.6, -11.75, 0)), False)
sketch11.addGeometry(Part.LineSegment(V(-55.6, -11.75, 0), V(-50, -11.75, 0)), False)
sketch11.addGeometry(Part.LineSegment(V(-50, -11.75, 0), V(-50, -17.75, 0)), False)
sketch11.addGeometry(Part.LineSegment(V(-50, -17.75, 0), V(50, -17.75, 0)), False)
sketch11.addGeometry(Part.LineSegment(V(50, -17.75, 0), V(50, -11.75, 0)), False)
sketch11.addGeometry(Part.LineSegment(V(50, -11.75, 0), V(55.6, -11.75, 0)), False)
sketch11.addGeometry(Part.LineSegment(V(55.6, -11.75, 0), V(55.6, 11.75, 0)), False)
sketch11.addGeometry(Part.LineSegment(V(55.6, 11.75, 0), V(50, 11.75, 0)), False)
sketch11.addGeometry(Part.LineSegment(V(50, 11.75, 0), V(50, -8.15681, 0)), False)
sketch11.addConstraint(Sketcher.Constraint("Coincident", 0, 2, 1, 1))
sketch11.addConstraint(Sketcher.Constraint("Coincident", 1, 2, 2, 1))
sketch11.addConstraint(Sketcher.Constraint("Coincident", 2, 2, 3, 1))
sketch11.addConstraint(Sketcher.Constraint("Coincident", 3, 2, 4, 1))
sketch11.addConstraint(Sketcher.Constraint("Coincident", 4, 2, 5, 1))
sketch11.addConstraint(Sketcher.Constraint("Coincident", 5, 2, 6, 1))
sketch11.addConstraint(Sketcher.Constraint("Coincident", 6, 2, 7, 1))
sketch11.addConstraint(Sketcher.Constraint("Coincident", 7, 2, 8, 1))
sketch11.addConstraint(Sketcher.Constraint("Coincident", 8, 2, 9, 1))
sketch11.addConstraint(Sketcher.Constraint("Coincident", 9, 2, 10, 1))
sketch11.addConstraint(Sketcher.Constraint("Coincident", 10, 2, 11, 1))
sketch11.addConstraint(Sketcher.Constraint("Coincident", 11, 2, 0, 1))
sketch11.addConstraint(Sketcher.Constraint("Horizontal", 0))
sketch11.addConstraint(Sketcher.Constraint("Vertical", 1))
sketch11.addConstraint(Sketcher.Constraint("Horizontal", 2))
sketch11.addConstraint(Sketcher.Constraint("Vertical", 3))
sketch11.addConstraint(Sketcher.Constraint("Horizontal", 4))
sketch11.addConstraint(Sketcher.Constraint("Vertical", 5))
sketch11.addConstraint(Sketcher.Constraint("Horizontal", 6))
sketch11.addConstraint(Sketcher.Constraint("Vertical", 7))
sketch11.addConstraint(Sketcher.Constraint("Horizontal", 8))
sketch11.addConstraint(Sketcher.Constraint("Vertical", 9))
sketch11.addConstraint(Sketcher.Constraint("Horizontal", 10))
sketch11.addConstraint(Sketcher.Constraint("Vertical", 11))
sketch11.addConstraint(Sketcher.Constraint("Symmetric", 1, 2, 7, 2, -1, 1))
sketch11.addConstraint(Sketcher.Constraint("Symmetric", 3, 2, 9, 2, -1, 1))
sketch11.addConstraint(Sketcher.Constraint("Symmetric", 4, 2, 7, 2, -2))
sketch11.addConstraint(Sketcher.Constraint("Vertical", 7, 2, 10, 2))
sketch11.addConstraint(Sketcher.Constraint("DistanceX", 0, 2, 0, 1, 100.0))
sketch11.addConstraint(Sketcher.Constraint("DistanceY", 5, 2, 5, 1, 6.0))
sketch11.addConstraint(Sketcher.Constraint("DistanceX", 2, 2, 2, 1, 5.6))
sketch11.addConstraint(Sketcher.Constraint("DistanceY", 3, 2, 3, 1, 23.5))
sketch11.addConstraint(Sketcher.Constraint("DistanceY", 1, 1, 1, 2, 19.90681))
pad3 = doc.addObject("PartDesign::Pad", "Pad002")
body.addObject(pad3)
pad3.Profile = sketch11
pad3.Length = 2

doc.recompute()
